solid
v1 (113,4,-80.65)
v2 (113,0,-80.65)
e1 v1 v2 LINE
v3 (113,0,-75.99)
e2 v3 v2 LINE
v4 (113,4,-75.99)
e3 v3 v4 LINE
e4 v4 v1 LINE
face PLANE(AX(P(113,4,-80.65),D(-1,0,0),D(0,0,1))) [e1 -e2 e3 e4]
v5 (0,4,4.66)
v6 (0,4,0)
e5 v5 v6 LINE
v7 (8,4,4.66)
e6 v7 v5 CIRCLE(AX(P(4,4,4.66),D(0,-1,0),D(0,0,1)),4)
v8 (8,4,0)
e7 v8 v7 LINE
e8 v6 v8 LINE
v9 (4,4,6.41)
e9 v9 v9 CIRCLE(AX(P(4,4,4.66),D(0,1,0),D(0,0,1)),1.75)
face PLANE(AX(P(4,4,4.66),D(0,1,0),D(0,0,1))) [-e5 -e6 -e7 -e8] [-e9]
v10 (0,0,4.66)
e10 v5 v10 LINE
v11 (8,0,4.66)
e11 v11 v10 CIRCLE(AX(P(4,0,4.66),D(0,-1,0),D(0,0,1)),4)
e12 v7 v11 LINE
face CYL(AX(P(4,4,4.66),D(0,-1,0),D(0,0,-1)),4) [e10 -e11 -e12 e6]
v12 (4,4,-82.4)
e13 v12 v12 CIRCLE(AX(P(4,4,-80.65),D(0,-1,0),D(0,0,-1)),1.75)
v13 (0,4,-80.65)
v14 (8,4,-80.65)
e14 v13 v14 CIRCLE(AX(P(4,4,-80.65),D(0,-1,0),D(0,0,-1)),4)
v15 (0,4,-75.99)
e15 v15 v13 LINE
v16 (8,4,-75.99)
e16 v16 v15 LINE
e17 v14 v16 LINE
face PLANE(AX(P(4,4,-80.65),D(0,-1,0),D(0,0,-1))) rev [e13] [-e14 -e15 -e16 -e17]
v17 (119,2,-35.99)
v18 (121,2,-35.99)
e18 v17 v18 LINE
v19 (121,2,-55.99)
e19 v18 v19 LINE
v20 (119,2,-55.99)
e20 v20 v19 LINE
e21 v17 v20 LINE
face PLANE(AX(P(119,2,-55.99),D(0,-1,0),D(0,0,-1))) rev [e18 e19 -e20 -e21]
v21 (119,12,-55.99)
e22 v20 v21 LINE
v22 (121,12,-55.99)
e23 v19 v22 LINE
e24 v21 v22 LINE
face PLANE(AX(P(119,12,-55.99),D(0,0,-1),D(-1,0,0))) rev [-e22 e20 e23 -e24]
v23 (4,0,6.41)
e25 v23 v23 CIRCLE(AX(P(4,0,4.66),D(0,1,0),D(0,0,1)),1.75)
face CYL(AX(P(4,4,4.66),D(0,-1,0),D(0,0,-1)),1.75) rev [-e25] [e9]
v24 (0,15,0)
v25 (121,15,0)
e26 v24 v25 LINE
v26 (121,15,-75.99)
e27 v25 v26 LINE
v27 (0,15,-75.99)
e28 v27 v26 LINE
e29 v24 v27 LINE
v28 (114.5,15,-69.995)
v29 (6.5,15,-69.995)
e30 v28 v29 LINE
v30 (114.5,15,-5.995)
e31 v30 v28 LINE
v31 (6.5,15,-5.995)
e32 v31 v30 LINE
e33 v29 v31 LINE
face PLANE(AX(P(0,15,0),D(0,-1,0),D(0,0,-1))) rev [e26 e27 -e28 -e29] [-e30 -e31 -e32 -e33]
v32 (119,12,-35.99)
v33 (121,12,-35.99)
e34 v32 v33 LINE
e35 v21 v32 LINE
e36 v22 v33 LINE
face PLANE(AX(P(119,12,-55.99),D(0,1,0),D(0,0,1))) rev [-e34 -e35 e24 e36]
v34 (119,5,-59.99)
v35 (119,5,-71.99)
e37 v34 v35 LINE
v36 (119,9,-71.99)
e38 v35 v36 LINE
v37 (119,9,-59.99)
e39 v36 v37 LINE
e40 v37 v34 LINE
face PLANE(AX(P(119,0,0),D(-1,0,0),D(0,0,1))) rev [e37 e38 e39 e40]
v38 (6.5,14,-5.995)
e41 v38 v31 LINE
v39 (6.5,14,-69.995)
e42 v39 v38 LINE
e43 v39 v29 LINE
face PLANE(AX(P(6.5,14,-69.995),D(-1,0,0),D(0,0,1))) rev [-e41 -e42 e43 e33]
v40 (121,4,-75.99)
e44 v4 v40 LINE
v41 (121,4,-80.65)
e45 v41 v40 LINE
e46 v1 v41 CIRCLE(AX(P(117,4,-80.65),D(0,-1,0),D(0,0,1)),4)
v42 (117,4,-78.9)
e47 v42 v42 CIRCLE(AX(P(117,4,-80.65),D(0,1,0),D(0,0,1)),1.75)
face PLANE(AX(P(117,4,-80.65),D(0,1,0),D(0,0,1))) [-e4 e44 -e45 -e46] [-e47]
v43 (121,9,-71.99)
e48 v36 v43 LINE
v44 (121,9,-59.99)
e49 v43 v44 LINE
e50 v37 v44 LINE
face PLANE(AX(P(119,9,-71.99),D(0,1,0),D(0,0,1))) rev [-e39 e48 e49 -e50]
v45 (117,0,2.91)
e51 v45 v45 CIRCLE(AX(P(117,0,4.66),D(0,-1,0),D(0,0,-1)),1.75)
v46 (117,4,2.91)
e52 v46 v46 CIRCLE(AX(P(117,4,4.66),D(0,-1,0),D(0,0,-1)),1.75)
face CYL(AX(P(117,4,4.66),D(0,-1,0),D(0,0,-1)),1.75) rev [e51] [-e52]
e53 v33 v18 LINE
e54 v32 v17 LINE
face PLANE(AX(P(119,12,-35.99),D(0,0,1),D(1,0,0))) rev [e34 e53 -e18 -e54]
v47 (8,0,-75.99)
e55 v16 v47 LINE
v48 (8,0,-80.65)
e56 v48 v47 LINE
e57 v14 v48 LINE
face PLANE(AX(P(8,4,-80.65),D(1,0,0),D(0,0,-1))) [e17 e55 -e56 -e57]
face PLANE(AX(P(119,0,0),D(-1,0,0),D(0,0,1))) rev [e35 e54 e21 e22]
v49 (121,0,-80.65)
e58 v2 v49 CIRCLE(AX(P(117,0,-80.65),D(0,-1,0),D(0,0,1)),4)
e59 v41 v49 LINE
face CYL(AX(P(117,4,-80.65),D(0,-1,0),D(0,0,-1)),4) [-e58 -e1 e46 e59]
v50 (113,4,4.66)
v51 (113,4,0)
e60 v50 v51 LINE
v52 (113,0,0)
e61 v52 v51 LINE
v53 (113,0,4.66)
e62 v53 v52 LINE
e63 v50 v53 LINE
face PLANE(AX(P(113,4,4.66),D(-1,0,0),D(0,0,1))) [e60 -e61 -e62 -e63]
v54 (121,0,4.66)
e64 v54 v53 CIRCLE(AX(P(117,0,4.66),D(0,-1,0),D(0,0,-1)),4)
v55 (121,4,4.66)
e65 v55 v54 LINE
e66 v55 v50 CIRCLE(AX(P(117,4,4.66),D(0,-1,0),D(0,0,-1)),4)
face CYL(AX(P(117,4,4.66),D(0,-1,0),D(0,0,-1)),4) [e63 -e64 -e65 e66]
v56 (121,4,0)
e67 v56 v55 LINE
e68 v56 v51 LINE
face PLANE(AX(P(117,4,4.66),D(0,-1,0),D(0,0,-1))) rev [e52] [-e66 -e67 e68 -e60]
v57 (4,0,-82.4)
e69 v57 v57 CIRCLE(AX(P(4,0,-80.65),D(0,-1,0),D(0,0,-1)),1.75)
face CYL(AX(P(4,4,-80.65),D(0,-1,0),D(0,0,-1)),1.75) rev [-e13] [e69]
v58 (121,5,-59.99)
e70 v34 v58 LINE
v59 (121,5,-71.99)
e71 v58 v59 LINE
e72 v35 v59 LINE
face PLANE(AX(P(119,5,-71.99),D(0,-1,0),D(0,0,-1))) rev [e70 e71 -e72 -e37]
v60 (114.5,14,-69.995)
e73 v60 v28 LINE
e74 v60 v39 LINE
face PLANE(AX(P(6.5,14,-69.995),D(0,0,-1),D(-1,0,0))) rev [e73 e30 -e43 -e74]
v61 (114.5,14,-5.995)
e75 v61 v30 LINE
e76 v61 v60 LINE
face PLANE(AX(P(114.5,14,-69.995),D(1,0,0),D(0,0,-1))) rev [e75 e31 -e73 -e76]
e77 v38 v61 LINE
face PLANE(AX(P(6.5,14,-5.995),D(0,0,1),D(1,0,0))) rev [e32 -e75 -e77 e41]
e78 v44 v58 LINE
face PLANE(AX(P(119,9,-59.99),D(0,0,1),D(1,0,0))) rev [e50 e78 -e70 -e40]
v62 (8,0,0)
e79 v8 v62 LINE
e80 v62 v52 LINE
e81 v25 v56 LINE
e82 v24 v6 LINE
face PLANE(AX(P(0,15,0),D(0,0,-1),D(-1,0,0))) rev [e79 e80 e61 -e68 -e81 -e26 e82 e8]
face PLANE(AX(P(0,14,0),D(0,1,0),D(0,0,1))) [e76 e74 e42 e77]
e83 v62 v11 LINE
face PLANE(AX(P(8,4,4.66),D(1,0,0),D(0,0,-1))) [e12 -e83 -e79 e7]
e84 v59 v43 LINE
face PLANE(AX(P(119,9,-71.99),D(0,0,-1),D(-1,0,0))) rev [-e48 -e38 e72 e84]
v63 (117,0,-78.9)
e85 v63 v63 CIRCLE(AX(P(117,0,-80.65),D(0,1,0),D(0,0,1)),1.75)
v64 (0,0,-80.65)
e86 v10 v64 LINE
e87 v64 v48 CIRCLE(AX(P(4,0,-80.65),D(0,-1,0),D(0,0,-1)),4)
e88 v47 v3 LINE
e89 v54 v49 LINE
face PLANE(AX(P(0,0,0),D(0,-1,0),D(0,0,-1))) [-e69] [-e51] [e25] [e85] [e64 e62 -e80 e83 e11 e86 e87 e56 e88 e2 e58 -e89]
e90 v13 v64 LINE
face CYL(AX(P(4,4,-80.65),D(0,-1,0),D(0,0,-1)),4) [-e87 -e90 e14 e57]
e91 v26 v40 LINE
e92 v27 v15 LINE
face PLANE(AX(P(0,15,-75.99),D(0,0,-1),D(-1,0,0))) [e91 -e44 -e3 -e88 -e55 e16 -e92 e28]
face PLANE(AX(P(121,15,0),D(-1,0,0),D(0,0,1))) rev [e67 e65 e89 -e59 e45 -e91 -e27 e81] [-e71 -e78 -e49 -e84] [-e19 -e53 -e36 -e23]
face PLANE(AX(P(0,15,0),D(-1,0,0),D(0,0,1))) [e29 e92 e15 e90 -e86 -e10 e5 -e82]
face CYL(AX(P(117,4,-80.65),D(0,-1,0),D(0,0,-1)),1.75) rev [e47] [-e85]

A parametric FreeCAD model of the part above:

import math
import FreeCAD as App
import Part
import Sketcher

V = App.Vector
Q = App.Units.Quantity

doc = App.newDocument("Part")
body = doc.addObject("PartDesign::Body", "Body")

# Sketch on XZ plane
sketch1 = doc.addObject("Sketcher::SketchObject", "Sketch")
body.addObject(sketch1)
sketch1.AttachmentSupport = (doc.XZ_Plane, [""])
sketch1.MapMode = "FlatFace"
sketch1.addGeometry(Part.LineSegment(V(0, -76, 0), V(0, 0, 0)), False)
sketch1.addGeometry(Part.LineSegment(V(0, 0, 0), V(121, 0, 0)), False)
sketch1.addGeometry(Part.LineSegment(V(121, 0, 0), V(121, -76, 0)), False)
sketch1.addGeometry(Part.LineSegment(V(121, -76, 0), V(0, -76, 0)), False)
sketch1.addConstraint(Sketcher.Constraint("Coincident", 0, 2, 1, 1))
sketch1.addConstraint(Sketcher.Constraint("Coincident", 1, 2, 2, 1))
sketch1.addConstraint(Sketcher.Constraint("Coincident", 2, 2, 3, 1))
sketch1.addConstraint(Sketcher.Constraint("Coincident", 3, 2, 0, 1))
sketch1.addConstraint(Sketcher.Constraint("Vertical", 0))
sketch1.addConstraint(Sketcher.Constraint("Horizontal", 1))
sketch1.addConstraint(Sketcher.Constraint("Vertical", 2))
sketch1.addConstraint(Sketcher.Constraint("Horizontal", 3))
sketch1.addConstraint(Sketcher.Constraint("Coincident", 0, 2, -1, 1))
sketch1.addConstraint(Sketcher.Constraint("DistanceX", 1, 1, 1, 2, Q("121 mm")))
sketch1.addConstraint(Sketcher.Constraint("DistanceY", 0, 1, 0, 2, Q("75.99 mm")))
pad1 = doc.addObject("PartDesign::Pad", "Pad")
body.addObject(pad1)
pad1.Profile = sketch1
pad1.Length = 15
pad1.Reversed = True

# Sketch on XZ plane
sketch2 = doc.addObject("Sketcher::SketchObject", "Sketch001")
body.addObject(sketch2)
sketch2.AttachmentSupport = (doc.XZ_Plane, [""])
sketch2.MapMode = "FlatFace"
sketch2.AttachmentOffset = App.Placement(V(0, 0, -15), App.Rotation())
sketch2.addGeometry(Part.LineSegment(V(6, -70, 0), V(6, -6, 0)), False)
sketch2.addGeometry(Part.LineSegment(V(6, -6, 0), V(114, -6, 0)), False)
sketch2.addGeometry(Part.LineSegment(V(114, -6, 0), V(114, -70, 0)), False)
sketch2.addGeometry(Part.LineSegment(V(114, -70, 0), V(6, -70, 0)), False)
sketch2.addConstraint(Sketcher.Constraint("Coincident", 0, 2, 1, 1))
sketch2.addConstraint(Sketcher.Constraint("Coincident", 1, 2, 2, 1))
sketch2.addConstraint(Sketcher.Constraint("Coincident", 2, 2, 3, 1))
sketch2.addConstraint(Sketcher.Constraint("Coincident", 3, 2, 0, 1))
sketch2.addConstraint(Sketcher.Constraint("Vertical", 0))
sketch2.addConstraint(Sketcher.Constraint("Horizontal", 1))
sketch2.addConstraint(Sketcher.Constraint("Vertical", 2))
sketch2.addConstraint(Sketcher.Constraint("Horizontal", 3))
sketch2.addConstraint(Sketcher.Constraint("DistanceX", 1, 1, 1, 2, Q("108 mm")))
sketch2.addConstraint(Sketcher.Constraint("DistanceY", 0, 1, 0, 2, Q("64 mm")))
sketch2.addConstraint(Sketcher.Constraint("DistanceX", -1, 1, 0, 2, Q("6.5 mm")))
sketch2.addConstraint(Sketcher.Constraint("DistanceY", 0, 2, -1, 1, Q("5.995 mm")))
pocket1 = doc.addObject("PartDesign::Pocket", "Pocket")
body.addObject(pocket1)
pocket1.Profile = sketch2
pocket1.Length = 1
pocket1.Reversed = True

# Sketch on XZ plane
sketch3 = doc.addObject("Sketcher::SketchObject", "Sketch002")
body.addObject(sketch3)
sketch3.AttachmentSupport = (doc.XZ_Plane, [""])
sketch3.MapMode = "FlatFace"
sketch3.addGeometry(Part.LineSegment(V(0, -71.3, 0), V(0, -80.7, 0)), False)
sketch3.addGeometry(Part.ArcOfCircle(Part.Circle(V(4, -80.7, 0), V(0, 0, 1), 4), math.radians(180), math.radians(360)), False)
sketch3.addGeometry(Part.LineSegment(V(8, -80.7, 0), V(8, -71.3, 0)), False)
sketch3.addGeometry(Part.ArcOfCircle(Part.Circle(V(4, -71.3, 0), V(0, 0, 1), 4), math.radians(0), math.radians(180)), False)
sketch3.addGeometry(Part.LineSegment(V(121, -80.7, 0), V(121, -71.3, 0)), False)
sketch3.addGeometry(Part.ArcOfCircle(Part.Circle(V(117, -71.3, 0), V(0, 0, 1), 4), math.radians(0), math.radians(180)), False)
sketch3.addGeometry(Part.LineSegment(V(113, -71.3, 0), V(113, -80.7, 0)), False)
sketch3.addGeometry(Part.ArcOfCircle(Part.Circle(V(117, -80.7, 0), V(0, 0, 1), 4), math.radians(180), math.radians(360)), False)
sketch3.addGeometry(Part.LineSegment(V(0, 4.7, 0), V(0, -4.7, 0)), False)
sketch3.addGeometry(Part.ArcOfCircle(Part.Circle(V(4, -4.7, 0), V(0, 0, 1), 4), math.radians(180), math.radians(360)), False)
sketch3.addGeometry(Part.LineSegment(V(8, -4.7, 0), V(8, 4.7, 0)), False)
sketch3.addGeometry(Part.ArcOfCircle(Part.Circle(V(4, 4.7, 0), V(0, 0, 1), 4), math.radians(0), math.radians(180)), False)
sketch3.addGeometry(Part.LineSegment(V(121, -4.7, 0), V(121, 4.7, 0)), False)
sketch3.addGeometry(Part.ArcOfCircle(Part.Circle(V(117, 4.7, 0), V(0, 0, 1), 4), math.radians(0), math.radians(180)), False)
sketch3.addGeometry(Part.LineSegment(V(113, 4.7, 0), V(113, -4.7, 0)), False)
sketch3.addGeometry(Part.ArcOfCircle(Part.Circle(V(117, -4.7, 0), V(0, 0, 1), 4), math.radians(180), math.radians(360)), False)
sketch3.addConstraint(Sketcher.Constraint("Tangent", 0, 2, 1, 1))
sketch3.addConstraint(Sketcher.Constraint("Tangent", 1, 2, 2, 1))
sketch3.addConstraint(Sketcher.Constraint("Tangent", 2, 2, 3, 1))
sketch3.addConstraint(Sketcher.Constraint("Tangent", 3, 2, 0, 1))
sketch3.addConstraint(Sketcher.Constraint("Tangent", 4, 2, 5, 1))
sketch3.addConstraint(Sketcher.Constraint("Tangent", 5, 2, 6, 1))
sketch3.addConstraint(Sketcher.Constraint("Tangent", 6, 2, 7, 1))
sketch3.addConstraint(Sketcher.Constraint("Tangent", 7, 2, 4, 1))
sketch3.addConstraint(Sketcher.Constraint("Tangent", 8, 2, 9, 1))
sketch3.addConstraint(Sketcher.Constraint("Tangent", 9, 2, 10, 1))
sketch3.addConstraint(Sketcher.Constraint("Tangent", 10, 2, 11, 1))
sketch3.addConstraint(Sketcher.Constraint("Tangent", 11, 2, 8, 1))
sketch3.addConstraint(Sketcher.Constraint("Tangent", 12, 2, 13, 1))
sketch3.addConstraint(Sketcher.Constraint("Tangent", 13, 2, 14, 1))
sketch3.addConstraint(Sketcher.Constraint("Tangent", 14, 2, 15, 1))
sketch3.addConstraint(Sketcher.Constraint("Tangent", 15, 2, 12, 1))
sketch3.addConstraint(Sketcher.Constraint("Vertical", 0))
sketch3.addConstraint(Sketcher.Constraint("Vertical", 2))
sketch3.addConstraint(Sketcher.Constraint("Vertical", 4))
sketch3.addConstraint(Sketcher.Constraint("Vertical", 6))
sketch3.addConstraint(Sketcher.Constraint("Vertical", 8))
sketch3.addConstraint(Sketcher.Constraint("Vertical", 10))
sketch3.addConstraint(Sketcher.Constraint("Vertical", 12))
sketch3.addConstraint(Sketcher.Constraint("Vertical", 14))
sketch3.addConstraint(Sketcher.Constraint("Equal", 3, 5))
sketch3.addConstraint(Sketcher.Constraint("Equal", 7, 9))
sketch3.addConstraint(Sketcher.Constraint("Equal", 11, 13))
sketch3.addConstraint(Sketcher.Constraint("Symmetric", 8, 2, 11, 2, -1, 1))
sketch3.addConstraint(Sketcher.Constraint("PointOnObject", 0, 2, -2))
sketch3.addConstraint(Sketcher.Constraint("Horizontal", 3, 3, 5, 3))
sketch3.addConstraint(Sketcher.Constraint("Horizontal", 1, 3, 7, 3))
sketch3.addConstraint(Sketcher.Constraint("Horizontal", 11, 3, 13, 3))
sketch3.addConstraint(Sketcher.Constraint("Horizontal", 9, 3, 15, 3))
sketch3.addConstraint(Sketcher.Constraint("Vertical", 7, 3, 13, 3))
sketch3.addConstraint(Sketcher.Constraint("Equal", 6, 8))
sketch3.addConstraint(Sketcher.Constraint("Radius", 1, Q("4 mm")))
sketch3.addConstraint(Sketcher.Constraint("DistanceX", -1, 1, 5, 3, Q("117 mm")))
sketch3.addConstraint(Sketcher.Constraint("DistanceY", 0, 2, 0, 1, Q("9.32 mm")))
sketch3.addConstraint(Sketcher.Constraint("DistanceY", 1, 3, -1, 1, Q("80.65 mm")))
pad2 = doc.addObject("PartDesign::Pad", "Pad001")
body.addObject(pad2)
pad2.Profile = sketch3
pad2.Length = 4
pad2.Reversed = True

# Sketch on XZ plane
sketch4 = doc.addObject("Sketcher::SketchObject", "Sketch003")
body.addObject(sketch4)
sketch4.AttachmentSupport = (doc.XZ_Plane, [""])
sketch4.MapMode = "FlatFace"
sketch4.addGeometry(Part.Circle(V(4, -80.7, 0), V(0, 0, 1), 1.8), False)
sketch4.addGeometry(Part.Circle(V(117, -80.7, 0), V(0, 0, 1), 1.8), False)
sketch4.addGeometry(Part.Circle(V(4, 4.7, 0), V(0, 0, 1), 1.8), False)
sketch4.addGeometry(Part.Circle(V(117, 4.7, 0), V(0, 0, 1), 1.8), False)
sketch4.addConstraint(Sketcher.Constraint("Equal", 0, 1))
sketch4.addConstraint(Sketcher.Constraint("Equal", 1, 2))
sketch4.addConstraint(Sketcher.Constraint("Equal", 2, 3))
sketch4.addConstraint(Sketcher.Constraint("Horizontal", 0, 3, 1, 3))
sketch4.addConstraint(Sketcher.Constraint("Horizontal", 2, 3, 3, 3))
sketch4.addConstraint(Sketcher.Constraint("Vertical", 0, 3, 2, 3))
sketch4.addConstraint(Sketcher.Constraint("Vertical", 1, 3, 3, 3))
sketch4.addConstraint(Sketcher.Constraint("Diameter", 0, Q("3.5 mm")))
sketch4.addConstraint(Sketcher.Constraint("DistanceX", -1, 1, 0, 3, Q("4 mm")))
sketch4.addConstraint(Sketcher.Constraint("DistanceX", -1, 1, 1, 3, Q("117 mm")))
sketch4.addConstraint(Sketcher.Constraint("DistanceY", 0, 3, -1, 1, Q("80.65 mm")))
sketch4.addConstraint(Sketcher.Constraint("DistanceY", -1, 1, 2, 3, Q("4.66 mm")))
pocket2 = doc.addObject("PartDesign::Pocket", "Pocket001")
body.addObject(pocket2)
pocket2.Profile = sketch4
pocket2.Length = 4

# Sketch on YZ plane
sketch5 = doc.addObject("Sketcher::SketchObject", "Sketch004")
body.addObject(sketch5)
sketch5.AttachmentSupport = (doc.YZ_Plane, [""])
sketch5.MapMode = "FlatFace"
sketch5.AttachmentOffset = App.Placement(V(0, 0, 121), App.Rotation())
sketch5.addGeometry(Part.LineSegment(V(9, -60, 0), V(5, -60, 0)), False)
sketch5.addGeometry(Part.LineSegment(V(5, -60, 0), V(5, -72, 0)), False)
sketch5.addGeometry(Part.LineSegment(V(5, -72, 0), V(9, -72, 0)), False)
sketch5.addGeometry(Part.LineSegment(V(9, -72, 0), V(9, -60, 0)), False)
sketch5.addGeometry(Part.LineSegment(V(12, -36, 0), V(2, -36, 0)), False)
sketch5.addGeometry(Part.LineSegment(V(2, -36, 0), V(2, -56, 0)), False)
sketch5.addGeometry(Part.LineSegment(V(2, -56, 0), V(12, -56, 0)), False)
sketch5.addGeometry(Part.LineSegment(V(12, -56, 0), V(12, -36, 0)), False)
sketch5.addConstraint(Sketcher.Constraint("Coincident", 0, 2, 1, 1))
sketch5.addConstraint(Sketcher.Constraint("Coincident", 1, 2, 2, 1))
sketch5.addConstraint(Sketcher.Constraint("Coincident", 2, 2, 3, 1))
sketch5.addConstraint(Sketcher.Constraint("Coincident", 3, 2, 0, 1))
sketch5.addConstraint(Sketcher.Constraint("Coincident", 4, 2, 5, 1))
sketch5.addConstraint(Sketcher.Constraint("Coincident", 5, 2, 6, 1))
sketch5.addConstraint(Sketcher.Constraint("Coincident", 6, 2, 7, 1))
sketch5.addConstraint(Sketcher.Constraint("Coincident", 7, 2, 4, 1))
sketch5.addConstraint(Sketcher.Constraint("Horizontal", 0))
sketch5.addConstraint(Sketcher.Constraint("Vertical", 1))
sketch5.addConstraint(Sketcher.Constraint("Horizontal", 2))
sketch5.addConstraint(Sketcher.Constraint("Vertical", 3))
sketch5.addConstraint(Sketcher.Constraint("Horizontal", 4))
sketch5.addConstraint(Sketcher.Constraint("Vertical", 5))
sketch5.addConstraint(Sketcher.Constraint("Horizontal", 6))
sketch5.addConstraint(Sketcher.Constraint("Vertical", 7))
sketch5.addConstraint(Sketcher.Constraint("DistanceX", 0, 2, 0, 1, Q("4 mm")))
sketch5.addConstraint(Sketcher.Constraint("DistanceX", 4, 2, 4, 1, Q("10 mm")))
sketch5.addConstraint(Sketcher.Constraint("DistanceY", 1, 2, 1, 1, Q("12 mm")))
sketch5.addConstraint(Sketcher.Constraint("DistanceY", 5, 2, 5, 1, Q("20 mm")))
sketch5.addConstraint(Sketcher.Constraint("DistanceX", -1, 1, 0, 2, Q("5 mm")))
sketch5.addConstraint(Sketcher.Constraint("DistanceX", -1, 1, 4, 2, Q("2 mm")))
sketch5.addConstraint(Sketcher.Constraint("DistanceY", 0, 2, 4, 2, Q("24 mm")))
sketch5.addConstraint(Sketcher.Constraint("DistanceY", 0, 2, -1, 1, Q("59.99 mm")))
pocket3 = doc.addObject("PartDesign::Pocket", "Pocket002")
body.addObject(pocket3)
pocket3.Profile = sketch5
pocket3.Length = 2

doc.recompute()
